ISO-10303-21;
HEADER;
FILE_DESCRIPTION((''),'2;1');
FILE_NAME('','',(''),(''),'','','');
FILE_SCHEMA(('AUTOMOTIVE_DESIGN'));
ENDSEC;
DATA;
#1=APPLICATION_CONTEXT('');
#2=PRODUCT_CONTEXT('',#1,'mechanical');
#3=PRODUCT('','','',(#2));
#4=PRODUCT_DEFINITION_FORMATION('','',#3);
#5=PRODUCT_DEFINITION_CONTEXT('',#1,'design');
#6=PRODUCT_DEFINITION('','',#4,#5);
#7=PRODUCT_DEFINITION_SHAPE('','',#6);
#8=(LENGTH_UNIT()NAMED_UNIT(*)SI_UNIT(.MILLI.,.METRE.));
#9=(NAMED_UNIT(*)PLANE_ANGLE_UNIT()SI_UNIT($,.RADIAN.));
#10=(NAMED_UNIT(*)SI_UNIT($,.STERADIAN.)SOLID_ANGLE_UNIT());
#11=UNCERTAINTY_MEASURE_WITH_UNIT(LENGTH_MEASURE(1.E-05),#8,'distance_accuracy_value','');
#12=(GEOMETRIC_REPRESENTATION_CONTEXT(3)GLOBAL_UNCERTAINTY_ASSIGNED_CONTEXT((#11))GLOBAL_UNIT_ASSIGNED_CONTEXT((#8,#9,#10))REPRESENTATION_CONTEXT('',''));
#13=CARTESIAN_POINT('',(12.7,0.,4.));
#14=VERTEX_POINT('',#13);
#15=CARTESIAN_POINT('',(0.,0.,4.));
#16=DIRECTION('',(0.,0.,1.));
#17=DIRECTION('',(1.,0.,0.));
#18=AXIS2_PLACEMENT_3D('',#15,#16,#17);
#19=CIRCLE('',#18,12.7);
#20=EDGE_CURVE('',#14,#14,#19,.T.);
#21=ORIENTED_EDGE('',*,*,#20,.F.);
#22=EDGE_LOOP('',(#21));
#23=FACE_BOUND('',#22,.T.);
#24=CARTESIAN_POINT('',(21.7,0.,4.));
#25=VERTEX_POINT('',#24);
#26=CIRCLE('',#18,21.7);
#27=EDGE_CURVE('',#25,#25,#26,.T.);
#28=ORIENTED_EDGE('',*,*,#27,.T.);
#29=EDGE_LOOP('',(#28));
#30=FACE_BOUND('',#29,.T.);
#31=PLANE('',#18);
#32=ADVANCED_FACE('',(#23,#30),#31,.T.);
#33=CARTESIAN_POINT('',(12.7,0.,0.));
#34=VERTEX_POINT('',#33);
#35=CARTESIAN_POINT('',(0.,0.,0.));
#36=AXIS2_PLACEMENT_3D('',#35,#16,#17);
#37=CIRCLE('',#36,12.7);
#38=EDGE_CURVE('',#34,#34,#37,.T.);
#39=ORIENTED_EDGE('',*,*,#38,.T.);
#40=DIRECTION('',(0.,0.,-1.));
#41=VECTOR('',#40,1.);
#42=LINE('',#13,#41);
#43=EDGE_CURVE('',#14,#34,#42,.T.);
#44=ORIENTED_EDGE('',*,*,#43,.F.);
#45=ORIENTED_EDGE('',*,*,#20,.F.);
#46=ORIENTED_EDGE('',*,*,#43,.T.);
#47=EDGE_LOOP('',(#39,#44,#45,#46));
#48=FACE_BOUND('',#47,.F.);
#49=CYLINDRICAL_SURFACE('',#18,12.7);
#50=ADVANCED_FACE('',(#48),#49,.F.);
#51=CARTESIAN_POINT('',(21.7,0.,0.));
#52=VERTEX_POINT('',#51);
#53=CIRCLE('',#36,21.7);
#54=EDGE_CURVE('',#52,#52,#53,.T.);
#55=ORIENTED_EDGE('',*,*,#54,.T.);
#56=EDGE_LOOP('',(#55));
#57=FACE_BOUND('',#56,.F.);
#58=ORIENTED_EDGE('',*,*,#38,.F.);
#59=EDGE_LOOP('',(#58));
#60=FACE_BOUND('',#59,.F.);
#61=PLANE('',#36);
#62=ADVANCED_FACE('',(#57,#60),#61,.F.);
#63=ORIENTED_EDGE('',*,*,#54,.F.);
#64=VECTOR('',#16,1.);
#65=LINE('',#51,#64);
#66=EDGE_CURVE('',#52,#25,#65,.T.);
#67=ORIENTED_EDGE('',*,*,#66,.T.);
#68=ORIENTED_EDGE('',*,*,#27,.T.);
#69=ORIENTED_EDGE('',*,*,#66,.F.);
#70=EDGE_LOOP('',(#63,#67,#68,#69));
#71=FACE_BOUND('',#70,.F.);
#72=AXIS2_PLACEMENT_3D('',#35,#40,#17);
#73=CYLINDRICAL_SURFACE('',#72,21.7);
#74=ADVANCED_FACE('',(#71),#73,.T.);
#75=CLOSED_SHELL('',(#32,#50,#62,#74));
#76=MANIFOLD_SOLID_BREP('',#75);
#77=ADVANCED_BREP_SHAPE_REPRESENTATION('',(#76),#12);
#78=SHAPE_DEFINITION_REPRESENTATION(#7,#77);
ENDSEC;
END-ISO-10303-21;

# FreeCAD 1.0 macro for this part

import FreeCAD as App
import Part
import Sketcher

doc = App.newDocument("Part")
params = doc.addObject("Spreadsheet::Sheet", "Params")
for row, (alias, value) in enumerate([
    ("sketch1_diameter", "43.4 mm"),
    ("pad1_length", "4 mm"),
    ("sketch2_diameter", "25.4 mm"),
    ("pocket1_length", "4 mm"),
], start=1):
    params.set(f"A{row}", alias)
    params.set(f"B{row}", "=" + value)
    params.setAlias(f"B{row}", alias)

body = doc.addObject("PartDesign::Body", "Body")

# Sketch on XY plane
sketch1 = doc.addObject("Sketcher::SketchObject", "Sketch")
body.addObject(sketch1)
sketch1.AttachmentSupport = (doc.XY_Plane, [""])
sketch1.MapMode = "FlatFace"
sketch1.addGeometry(Part.Circle(App.Vector(0, 0, 0), App.Vector(0, 0, 1), 22), False)
sketch1.addConstraint(Sketcher.Constraint("Coincident", 0, 3, -1, 1))
sketch1.addConstraint(Sketcher.Constraint("Diameter", 0, 43.4))
sketch1.setExpression("Constraints[1]", "Params.sketch1_diameter")
pad1 = doc.addObject("PartDesign::Pad", "Pad")
body.addObject(pad1)
pad1.Profile = sketch1
pad1.setExpression("Length", "Params.pad1_length")

# Sketch on XY plane
sketch2 = doc.addObject("Sketcher::SketchObject", "Sketch001")
body.addObject(sketch2)
sketch2.AttachmentSupport = (doc.XY_Plane, [""])
sketch2.MapMode = "FlatFace"
sketch2.AttachmentOffset = App.Placement(App.Vector(0, 0, 4), App.Rotation())
sketch2.addGeometry(Part.Circle(App.Vector(0, 0, 0), App.Vector(0, 0, 1), 13), False)
sketch2.addConstraint(Sketcher.Constraint("Coincident", 0, 3, -1, 1))
sketch2.addConstraint(Sketcher.Constraint("Diameter", 0, 25.4))
sketch2.setExpression("Constraints[1]", "Params.sketch2_diameter")
pocket1 = doc.addObject("PartDesign::Pocket", "Pocket")
body.addObject(pocket1)
pocket1.Profile = sketch2
pocket1.setExpression("Length", "Params.pocket1_length")

doc.recompute()
